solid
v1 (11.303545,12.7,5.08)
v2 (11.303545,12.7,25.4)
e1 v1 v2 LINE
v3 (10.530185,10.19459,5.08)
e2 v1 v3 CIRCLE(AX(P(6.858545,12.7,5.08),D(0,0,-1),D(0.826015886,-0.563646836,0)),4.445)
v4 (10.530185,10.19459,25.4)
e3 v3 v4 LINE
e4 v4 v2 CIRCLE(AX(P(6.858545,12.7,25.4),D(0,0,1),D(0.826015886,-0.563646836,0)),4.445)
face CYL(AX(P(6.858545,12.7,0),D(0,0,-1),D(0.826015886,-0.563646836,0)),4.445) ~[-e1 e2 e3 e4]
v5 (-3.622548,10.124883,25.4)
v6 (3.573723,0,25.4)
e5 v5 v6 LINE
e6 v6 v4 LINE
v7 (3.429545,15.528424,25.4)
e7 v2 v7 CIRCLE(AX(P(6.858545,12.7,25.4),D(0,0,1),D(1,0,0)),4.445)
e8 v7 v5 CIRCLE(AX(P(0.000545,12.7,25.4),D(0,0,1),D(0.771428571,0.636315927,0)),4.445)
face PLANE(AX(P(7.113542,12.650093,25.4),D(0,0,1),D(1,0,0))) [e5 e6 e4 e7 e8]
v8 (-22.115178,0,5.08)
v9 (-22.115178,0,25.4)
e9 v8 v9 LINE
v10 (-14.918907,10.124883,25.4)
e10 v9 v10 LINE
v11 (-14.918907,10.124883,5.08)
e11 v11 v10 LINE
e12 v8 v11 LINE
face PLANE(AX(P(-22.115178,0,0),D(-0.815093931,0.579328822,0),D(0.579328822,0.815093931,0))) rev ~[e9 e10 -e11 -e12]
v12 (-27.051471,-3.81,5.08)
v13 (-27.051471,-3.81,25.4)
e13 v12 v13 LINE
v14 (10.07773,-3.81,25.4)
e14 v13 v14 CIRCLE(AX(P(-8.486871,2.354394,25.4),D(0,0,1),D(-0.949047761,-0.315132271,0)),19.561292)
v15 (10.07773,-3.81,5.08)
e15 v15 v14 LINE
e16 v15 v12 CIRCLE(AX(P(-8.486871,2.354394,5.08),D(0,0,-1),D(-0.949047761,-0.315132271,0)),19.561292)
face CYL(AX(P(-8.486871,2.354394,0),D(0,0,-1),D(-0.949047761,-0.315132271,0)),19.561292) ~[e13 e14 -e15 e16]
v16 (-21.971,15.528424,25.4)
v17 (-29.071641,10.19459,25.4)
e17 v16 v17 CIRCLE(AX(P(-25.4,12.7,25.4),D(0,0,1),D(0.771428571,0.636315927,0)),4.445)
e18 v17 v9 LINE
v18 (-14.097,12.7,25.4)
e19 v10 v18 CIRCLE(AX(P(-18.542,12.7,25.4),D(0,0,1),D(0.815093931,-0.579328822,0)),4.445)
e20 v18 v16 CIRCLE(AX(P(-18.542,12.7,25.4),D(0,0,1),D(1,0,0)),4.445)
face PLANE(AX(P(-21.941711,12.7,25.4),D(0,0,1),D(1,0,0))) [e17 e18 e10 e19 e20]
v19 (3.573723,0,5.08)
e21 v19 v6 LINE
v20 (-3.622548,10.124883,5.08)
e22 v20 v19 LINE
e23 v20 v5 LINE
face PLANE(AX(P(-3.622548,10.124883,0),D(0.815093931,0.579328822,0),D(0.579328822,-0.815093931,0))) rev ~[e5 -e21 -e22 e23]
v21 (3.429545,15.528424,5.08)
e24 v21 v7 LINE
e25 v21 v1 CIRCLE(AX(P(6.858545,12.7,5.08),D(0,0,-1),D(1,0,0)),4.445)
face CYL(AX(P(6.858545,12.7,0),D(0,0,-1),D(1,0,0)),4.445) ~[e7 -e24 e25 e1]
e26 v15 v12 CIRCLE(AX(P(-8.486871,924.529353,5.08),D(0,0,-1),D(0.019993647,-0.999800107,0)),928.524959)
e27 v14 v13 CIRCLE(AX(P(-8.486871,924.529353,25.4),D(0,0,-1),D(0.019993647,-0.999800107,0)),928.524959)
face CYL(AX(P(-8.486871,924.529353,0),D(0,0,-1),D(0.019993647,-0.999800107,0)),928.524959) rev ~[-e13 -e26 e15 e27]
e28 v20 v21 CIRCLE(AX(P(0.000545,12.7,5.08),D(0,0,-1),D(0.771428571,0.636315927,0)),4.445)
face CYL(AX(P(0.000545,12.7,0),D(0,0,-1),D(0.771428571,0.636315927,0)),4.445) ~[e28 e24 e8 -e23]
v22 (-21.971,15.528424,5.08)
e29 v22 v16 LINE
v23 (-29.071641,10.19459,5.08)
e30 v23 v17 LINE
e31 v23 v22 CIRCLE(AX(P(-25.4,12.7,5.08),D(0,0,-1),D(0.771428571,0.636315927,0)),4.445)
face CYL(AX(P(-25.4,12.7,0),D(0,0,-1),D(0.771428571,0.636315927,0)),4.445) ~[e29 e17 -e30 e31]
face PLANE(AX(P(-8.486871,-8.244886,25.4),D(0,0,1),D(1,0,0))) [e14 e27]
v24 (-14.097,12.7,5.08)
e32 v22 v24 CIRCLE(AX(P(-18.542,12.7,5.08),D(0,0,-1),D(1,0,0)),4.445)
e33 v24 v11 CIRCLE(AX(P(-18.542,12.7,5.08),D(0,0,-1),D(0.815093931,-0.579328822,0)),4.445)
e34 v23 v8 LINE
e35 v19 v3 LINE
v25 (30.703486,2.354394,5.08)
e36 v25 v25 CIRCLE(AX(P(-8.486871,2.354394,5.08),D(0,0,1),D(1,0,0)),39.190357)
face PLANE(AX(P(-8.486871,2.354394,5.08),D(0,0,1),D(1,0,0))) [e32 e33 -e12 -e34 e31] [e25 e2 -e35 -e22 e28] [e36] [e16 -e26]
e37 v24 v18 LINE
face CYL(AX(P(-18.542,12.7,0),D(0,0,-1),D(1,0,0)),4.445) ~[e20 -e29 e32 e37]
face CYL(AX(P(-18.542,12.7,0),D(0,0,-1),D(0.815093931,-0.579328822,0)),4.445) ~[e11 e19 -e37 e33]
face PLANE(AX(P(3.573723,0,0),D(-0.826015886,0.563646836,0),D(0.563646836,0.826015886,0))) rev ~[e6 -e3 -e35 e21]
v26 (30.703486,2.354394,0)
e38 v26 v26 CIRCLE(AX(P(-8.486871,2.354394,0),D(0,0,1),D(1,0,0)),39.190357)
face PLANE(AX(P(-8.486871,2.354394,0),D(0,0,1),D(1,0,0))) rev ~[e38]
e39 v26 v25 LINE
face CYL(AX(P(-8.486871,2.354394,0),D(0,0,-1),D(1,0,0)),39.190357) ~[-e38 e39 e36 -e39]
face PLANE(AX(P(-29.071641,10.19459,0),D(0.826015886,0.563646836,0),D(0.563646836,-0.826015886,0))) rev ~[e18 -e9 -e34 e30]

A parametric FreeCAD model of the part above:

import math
import FreeCAD as App
import Part
import Sketcher
from FreeCAD import Vector
Q = App.Units.Quantity

doc = App.newDocument("Part")
params = doc.addObject("Spreadsheet::Sheet", "Params")
for row, (alias, value) in enumerate([
    ("sketch1_radius", "0.175 in"),
    ("pad1_length", "1 in"),
    ("sketch2_radius", "0.175 in"),
    ("pad2_length", "1 in"),
    ("pad3_length", "1 in"),
    ("pad4_length", "0.2 in"),
], start=1):
    params.set(f"A{row}", alias)
    params.set(f"B{row}", "=" + value)
    params.setAlias(f"B{row}", alias)

body = doc.addObject("PartDesign::Body", "Body")

# Sketch on XY plane
sketch1 = body.newObject("Sketcher::SketchObject", "Sketch")
sketch1.AttachmentSupport = (doc.getObject("XY_Plane"), [""])
sketch1.MapMode = "FlatFace"
sketch1.addGeometry([
    Part.ArcOfCircle(Part.Circle(Vector(-18.542, 12.7, 0), Vector(0, 0, 1), 4.445), math.radians(-35.403349), math.radians(0)),  # 0
    Part.ArcOfCircle(Part.Circle(Vector(-18.542, 12.7, 0), Vector(0, 0, 1), 4.445), math.radians(0), math.radians(140.482347)),  # 1
    Part.ArcOfCircle(Part.Circle(Vector(-25.4, 12.7, 0), Vector(0, 0, 1), 4.445), math.radians(39.517653), math.radians(214.308378)),  # 2
    Part.LineSegment(Vector(-29.071641, 10.19459, 0), Vector(-22.115178, 0, 0)),  # 3
    Part.LineSegment(Vector(-22.115178, 0, 0), Vector(-14.918907, 10.124883, 0)),  # 4
], False)
sketch1.addConstraint([
    Sketcher.Constraint("Tangent", 0, 2, 1, 1),
    Sketcher.Constraint("Coincident", 1, 2, 2, 1),
    Sketcher.Constraint("Tangent", 2, 2, 3, 1),
    Sketcher.Constraint("Coincident", 3, 2, 4, 1),
    Sketcher.Constraint("Tangent", 4, 2, 0, 1),
    Sketcher.Constraint("Equal", 0, 1),
    Sketcher.Constraint("Equal", 1, 2),
    Sketcher.Constraint("PointOnObject", 3, 2, -1),
    Sketcher.Constraint("Horizontal", 1, 3, 2, 3),
    Sketcher.Constraint("Horizontal", 2, 3, 0, 2),
    Sketcher.Constraint("DistanceX", 2, 3, -1, 1, Q("1 in")),
    Sketcher.Constraint("Radius", 0, Q("0.175 in")),
    Sketcher.Constraint("DistanceY", -1, 1, 0, 3, Q("0.5 in")),
    Sketcher.Constraint("DistanceX", 0, 3, -1, 1, Q("0.73 in")),
    Sketcher.Constraint("Distance", 3, Q("12.341881 mm")),
])
sketch1.setExpression("Constraints[11]", "Params.sketch1_radius")
pad1 = body.newObject("PartDesign::Pad", "Pad")
pad1.Profile = sketch1
pad1.setExpression("Length", "Params.pad1_length")
body2 = doc.addObject("PartDesign::Body", "Body001")

# Sketch on XY plane
sketch2 = body2.newObject("Sketcher::SketchObject", "Sketch001")
sketch2.AttachmentSupport = (doc.getObject("XY_Plane001"), [""])
sketch2.MapMode = "FlatFace"
sketch2.addGeometry([
    Part.ArcOfCircle(Part.Circle(Vector(6.858545, 12.7, 0), Vector(0, 0, 1), 4.445), math.radians(0), math.radians(140.482347)),  # 0
    Part.ArcOfCircle(Part.Circle(Vector(0.000545, 12.7, 0), Vector(0, 0, 1), 4.445), math.radians(39.517653), math.radians(215.403349)),  # 1
    Part.LineSegment(Vector(-3.622548, 10.124883, 0), Vector(3.573723, 0, 0)),  # 2
    Part.LineSegment(Vector(3.573723, 0, 0), Vector(10.530185, 10.19459, 0)),  # 3
    Part.ArcOfCircle(Part.Circle(Vector(6.858545, 12.7, 0), Vector(0, 0, 1), 4.445), math.radians(-34.308378), math.radians(0)),  # 4
], False)
sketch2.addConstraint([
    Sketcher.Constraint("Coincident", 0, 2, 1, 1),
    Sketcher.Constraint("Tangent", 1, 2, 2, 1),
    Sketcher.Constraint("Coincident", 2, 2, 3, 1),
    Sketcher.Constraint("Tangent", 3, 2, 4, 1),
    Sketcher.Constraint("Tangent", 4, 2, 0, 1),
    Sketcher.Constraint("Equal", 0, 1),
    Sketcher.Constraint("Equal", 1, 4),
    Sketcher.Constraint("PointOnObject", 2, 2, -1),
    Sketcher.Constraint("Horizontal", 0, 3, 1, 3),
    Sketcher.Constraint("Horizontal", 1, 3, 4, 2),
    Sketcher.Constraint("Radius", 0, Q("0.175 in")),
    Sketcher.Constraint("DistanceY", -1, 1, 0, 3, Q("0.5 in")),
    Sketcher.Constraint("DistanceX", 1, 3, 0, 3, Q("0.27 in")),
    Sketcher.Constraint("Distance", 2, Q("12.421738 mm")),
    Sketcher.Constraint("DistanceX", -1, 1, 0, 3, Q("6.858545 mm")),
])
sketch2.setExpression("Constraints[10]", "Params.sketch2_radius")
pad2 = body2.newObject("PartDesign::Pad", "Pad001")
pad2.Profile = sketch2
pad2.setExpression("Length", "Params.pad2_length")
body3 = doc.addObject("PartDesign::Body", "Body002")

# Sketch on XY plane
sketch3 = body3.newObject("Sketcher::SketchObject", "Sketch002")
sketch3.AttachmentSupport = (doc.getObject("XY_Plane002"), [""])
sketch3.MapMode = "FlatFace"
sketch3.addGeometry([
    Part.ArcOfCircle(Part.Circle(Vector(-8.486871, 924.529353, 0), Vector(0, 0, 1), 928.524959), math.radians(-91.145628), math.radians(-88.854372)),
    Part.ArcOfCircle(Part.Circle(Vector(-8.486871, 2.354394, 0), Vector(0, 0, 1), 19.561292), math.radians(-161.631201), math.radians(-18.368799)),
], False)
sketch3.addConstraint([
    Sketcher.Constraint("Coincident", 0, 1, 1, 1),
    Sketcher.Constraint("Coincident", 1, 2, 0, 2),
    Sketcher.Constraint("Horizontal", 0, 1, 1, 2),
    Sketcher.Constraint("DistanceY", 0, 1, -1, 1, Q("0.15 in")),
    Sketcher.Constraint("Radius", 0, Q("928.524959 mm")),
    Sketcher.Constraint("Radius", 1, Q("19.561292 mm")),
    Sketcher.Constraint("DistanceX", 1, 3, 1, 2, Q("18.5646 mm")),
    Sketcher.Constraint("DistanceX", 0, 3, -1, 1, Q("8.486871 mm")),
])
pad3 = body3.newObject("PartDesign::Pad", "Pad002")
pad3.Profile = sketch3
pad3.setExpression("Length", "Params.pad3_length")
body.AllowCompound = True
doc.recompute()

boolean = body.newObject("PartDesign::Boolean", "Boolean")
boolean.Type = "Fuse"
boolean.addObjects([body2])
doc.recompute()

boolean2 = body.newObject("PartDesign::Boolean", "Boolean001")
boolean2.Type = "Fuse"
boolean2.addObjects([body3])

# Sketch on XY plane
sketch4 = body.newObject("Sketcher::SketchObject", "Sketch003")
sketch4.AttachmentSupport = (doc.getObject("XY_Plane"), [""])
sketch4.MapMode = "FlatFace"
sketch4.addGeometry(Part.Circle(Vector(-8.486871, 2.354394, 0), Vector(0, 0, 1), 39.190357), False)
sketch4.addConstraint([
    Sketcher.Constraint("Diameter", 0, Q("78.380714 mm")),
    Sketcher.Constraint("DistanceX", 0, 3, -1, 1, Q("8.486871 mm")),
    Sketcher.Constraint("DistanceY", -1, 1, 0, 3, Q("2.354394 mm")),
])
pad4 = body.newObject("PartDesign::Pad", "Pad003")
pad4.Profile = sketch4
pad4.setExpression("Length", "Params.pad4_length")

doc.recompute()
